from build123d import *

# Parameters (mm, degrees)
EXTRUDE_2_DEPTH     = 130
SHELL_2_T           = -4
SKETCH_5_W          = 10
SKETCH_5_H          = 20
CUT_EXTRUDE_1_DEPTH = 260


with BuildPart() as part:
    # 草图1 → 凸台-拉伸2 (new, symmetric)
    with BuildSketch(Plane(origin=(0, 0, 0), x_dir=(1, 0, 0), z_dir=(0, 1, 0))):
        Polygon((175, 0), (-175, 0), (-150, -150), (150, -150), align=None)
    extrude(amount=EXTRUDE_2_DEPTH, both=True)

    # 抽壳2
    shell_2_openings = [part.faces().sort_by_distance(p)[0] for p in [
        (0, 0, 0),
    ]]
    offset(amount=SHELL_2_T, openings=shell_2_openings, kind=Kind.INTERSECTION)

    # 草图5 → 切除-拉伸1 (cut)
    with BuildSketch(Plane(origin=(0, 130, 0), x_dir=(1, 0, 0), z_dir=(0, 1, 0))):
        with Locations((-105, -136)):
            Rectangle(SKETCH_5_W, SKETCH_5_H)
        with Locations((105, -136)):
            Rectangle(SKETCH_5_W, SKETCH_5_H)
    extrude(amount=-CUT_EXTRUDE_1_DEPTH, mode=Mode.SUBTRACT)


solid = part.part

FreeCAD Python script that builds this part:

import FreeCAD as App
import Part
import Sketcher
from FreeCAD import Vector
Q = App.Units.Quantity


def faces_at(feature, points):
    """Names of the faces that lie closest to the given points."""
    faces = feature.Shape.Faces
    near = lambda p: min(range(len(faces)), key=lambda i: faces[i].distToShape(Part.Vertex(*p))[0])
    return sorted({f"Face{near(p) + 1}" for p in points})

doc = App.newDocument("Part")
body = doc.addObject("PartDesign::Body", "Body")

# Sketch on XZ plane
sketch1 = body.newObject("Sketcher::SketchObject", "Sketch")
sketch1.AttachmentSupport = (doc.getObject("XZ_Plane"), [""])
sketch1.MapMode = "FlatFace"
sketch1.addGeometry(Part.LineSegment(Vector(175, 0, 0), Vector(-175, 0, 0)), False)
sketch1.addGeometry(Part.LineSegment(Vector(-175, 0, 0), Vector(-150, 150, 0)), False)
sketch1.addGeometry(Part.LineSegment(Vector(-150, 150, 0), Vector(150, 150, 0)), False)
sketch1.addGeometry(Part.LineSegment(Vector(150, 150, 0), Vector(175, 0, 0)), False)
sketch1.addConstraint(Sketcher.Constraint("Coincident", 0, 2, 1, 1))
sketch1.addConstraint(Sketcher.Constraint("Coincident", 1, 2, 2, 1))
sketch1.addConstraint(Sketcher.Constraint("Coincident", 2, 2, 3, 1))
sketch1.addConstraint(Sketcher.Constraint("Coincident", 3, 2, 0, 1))
sketch1.addConstraint(Sketcher.Constraint("Horizontal", 0))
sketch1.addConstraint(Sketcher.Constraint("Horizontal", 2))
sketch1.addConstraint(Sketcher.Constraint("Symmetric", 0, 2, 3, 2, -1, 1))
sketch1.addConstraint(Sketcher.Constraint("Equal", 1, 3))
sketch1.addConstraint(Sketcher.Constraint("DistanceX", 0, 2, 0, 1, Q("350 mm")))
sketch1.addConstraint(Sketcher.Constraint("DistanceX", 2, 1, 2, 2, Q("300 mm")))
sketch1.addConstraint(Sketcher.Constraint("DistanceY", -1, 1, 1, 2, Q("150 mm")))
pad1 = body.newObject("PartDesign::Pad", "Pad")
pad1.Profile = sketch1
pad1.Length = 260
pad1.Midplane = True
doc.recompute()

thickness = body.newObject("PartDesign::Thickness", "Thickness")
thickness.Base = (pad1, faces_at(pad1, [(0, 0, 0)]))
thickness.Value = 4
thickness.Reversed = True
thickness.Join = "Intersection"

# Sketch on XZ plane
sketch2 = body.newObject("Sketcher::SketchObject", "Sketch001")
sketch2.AttachmentSupport = (doc.getObject("XZ_Plane"), [""])
sketch2.MapMode = "FlatFace"
sketch2.AttachmentOffset = App.Placement(Vector(0, 0, -130), App.Rotation())
sketch2.addGeometry(Part.LineSegment(Vector(-110, 126, 0), Vector(-110, 146, 0)), False)
sketch2.addGeometry(Part.LineSegment(Vector(-110, 146, 0), Vector(-100, 146, 0)), False)
sketch2.addGeometry(Part.LineSegment(Vector(-100, 146, 0), Vector(-100, 126, 0)), False)
sketch2.addGeometry(Part.LineSegment(Vector(-100, 126, 0), Vector(-110, 126, 0)), False)
sketch2.addGeometry(Part.LineSegment(Vector(100, 126, 0), Vector(100, 146, 0)), False)
sketch2.addGeometry(Part.LineSegment(Vector(100, 146, 0), Vector(110, 146, 0)), False)
sketch2.addGeometry(Part.LineSegment(Vector(110, 146, 0), Vector(110, 126, 0)), False)
sketch2.addGeometry(Part.LineSegment(Vector(110, 126, 0), Vector(100, 126, 0)), False)
sketch2.addConstraint(Sketcher.Constraint("Coincident", 0, 2, 1, 1))
sketch2.addConstraint(Sketcher.Constraint("Coincident", 1, 2, 2, 1))
sketch2.addConstraint(Sketcher.Constraint("Coincident", 2, 2, 3, 1))
sketch2.addConstraint(Sketcher.Constraint("Coincident", 3, 2, 0, 1))
sketch2.addConstraint(Sketcher.Constraint("Coincident", 4, 2, 5, 1))
sketch2.addConstraint(Sketcher.Constraint("Coincident", 5, 2, 6, 1))
sketch2.addConstraint(Sketcher.Constraint("Coincident", 6, 2, 7, 1))
sketch2.addConstraint(Sketcher.Constraint("Coincident", 7, 2, 4, 1))
sketch2.addConstraint(Sketcher.Constraint("Vertical", 0))
sketch2.addConstraint(Sketcher.Constraint("Horizontal", 1))
sketch2.addConstraint(Sketcher.Constraint("Vertical", 2))
sketch2.addConstraint(Sketcher.Constraint("Horizontal", 3))
sketch2.addConstraint(Sketcher.Constraint("Vertical", 4))
sketch2.addConstraint(Sketcher.Constraint("Horizontal", 5))
sketch2.addConstraint(Sketcher.Constraint("Vertical", 6))
sketch2.addConstraint(Sketcher.Constraint("Horizontal", 7))
sketch2.addConstraint(Sketcher.Constraint("Symmetric", 1, 2, 4, 2, -2))
sketch2.addConstraint(Sketcher.Constraint("Symmetric", 3, 2, 6, 2, -2))
sketch2.addConstraint(Sketcher.Constraint("DistanceX", 1, 1, 1, 2, Q("10 mm")))
sketch2.addConstraint(Sketcher.Constraint("DistanceY", 0, 1, 0, 2, Q("20 mm")))
sketch2.addConstraint(Sketcher.Constraint("DistanceX", 0, 2, -1, 1, Q("110 mm")))
sketch2.addConstraint(Sketcher.Constraint("DistanceY", -1, 1, 0, 2, Q("146 mm")))
pocket1 = body.newObject("PartDesign::Pocket", "Pocket")
pocket1.Profile = sketch2
pocket1.Length = 260
pocket1.Reversed = True

doc.recompute()
